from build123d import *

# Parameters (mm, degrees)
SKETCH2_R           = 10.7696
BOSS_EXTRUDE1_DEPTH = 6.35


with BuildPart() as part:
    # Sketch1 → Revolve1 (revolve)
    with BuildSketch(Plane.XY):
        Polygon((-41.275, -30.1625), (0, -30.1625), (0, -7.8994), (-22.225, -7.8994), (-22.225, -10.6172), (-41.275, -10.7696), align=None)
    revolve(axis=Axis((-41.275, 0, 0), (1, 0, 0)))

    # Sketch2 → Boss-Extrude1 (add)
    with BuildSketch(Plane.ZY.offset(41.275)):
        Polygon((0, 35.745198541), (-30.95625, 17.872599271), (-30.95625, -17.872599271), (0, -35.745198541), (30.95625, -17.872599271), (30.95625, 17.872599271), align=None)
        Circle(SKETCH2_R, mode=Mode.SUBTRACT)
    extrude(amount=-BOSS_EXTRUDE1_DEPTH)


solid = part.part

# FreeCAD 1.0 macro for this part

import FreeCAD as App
import Part
import Sketcher
from FreeCAD import Vector
Q = App.Units.Quantity


def add_polygon(sketch, points):
    """Adds a closed chain of lines whose ends are joined by coincident constraints."""
    first, n = sketch.GeometryCount, len(points)
    for a, b in zip(points, points[1:] + points[:1]):
        sketch.addGeometry(Part.LineSegment(App.Vector(*a, 0), App.Vector(*b, 0)), False)
    for i in range(n):
        sketch.addConstraint(Sketcher.Constraint("Coincident", first + i, 2, first + (i + 1) % n, 1))

doc = App.newDocument("Part")
params = doc.addObject("Spreadsheet::Sheet", "Params")
for row, (alias, value) in enumerate([
    ("sketch1_width", "1.625 in"),
    ("sketch1_width2", "0.875 in"),
    ("sketch1_height", "0.107 in"),
    ("revolution_angle", "360 deg"),
    ("sketch2_diameter", "0.848 in"),
    ("pad1_length", "0.25 in"),
], start=1):
    params.set(f"A{row}", alias)
    params.set(f"B{row}", "=" + value)
    params.setAlias(f"B{row}", alias)

body = doc.addObject("PartDesign::Body", "Body")

# Sketch on XY plane
sketch1 = body.newObject("Sketcher::SketchObject", "Sketch")
sketch1.AttachmentSupport = (doc.getObject("XY_Plane"), [""])
sketch1.MapMode = "FlatFace"
add_polygon(sketch1, [(-41.3, -30.2), (0, -30.2), (0, -7.9), (-22.2, -7.9), (-22.2, -10.6), (-41.3, -10.8)])  # lines 0-5
sketch1.addConstraint(Sketcher.Constraint("Horizontal", 0))
sketch1.addConstraint(Sketcher.Constraint("Vertical", 1))
sketch1.addConstraint(Sketcher.Constraint("Horizontal", 2))
sketch1.addConstraint(Sketcher.Constraint("Vertical", 3))
sketch1.addConstraint(Sketcher.Constraint("Vertical", 5))
sketch1.addConstraint(Sketcher.Constraint("PointOnObject", 0, 2, -2))
sketch1.addConstraint(Sketcher.Constraint("DistanceX", 0, 1, 0, 2, Q("1.625 in")))
sketch1.addConstraint(Sketcher.Constraint("DistanceX", 2, 2, 2, 1, Q("0.875 in")))
sketch1.addConstraint(Sketcher.Constraint("DistanceY", 3, 2, 3, 1, Q("0.107 in")))
sketch1.addConstraint(Sketcher.Constraint("DistanceY", 1, 1, 1, 2, Q("0.8765 in")))
sketch1.addConstraint(Sketcher.Constraint("DistanceY", 5, 2, 5, 1, Q("0.7635 in")))
sketch1.addConstraint(Sketcher.Constraint("DistanceY", 0, 2, -1, 1, Q("1.1875 in")))
sketch1.setExpression("Constraints[12]", "Params.sketch1_width")
sketch1.setExpression("Constraints[13]", "Params.sketch1_width2")
sketch1.setExpression("Constraints[14]", "Params.sketch1_height")
revolution = body.newObject("PartDesign::Revolution", "Revolution")
revolution.Profile = sketch1
revolution.ReferenceAxis = (sketch1, ["H_Axis"])
revolution.setExpression("Angle", "Params.revolution_angle")

# Sketch on YZ plane
sketch2 = body.newObject("Sketcher::SketchObject", "Sketch001")
sketch2.AttachmentSupport = (doc.getObject("YZ_Plane"), [""])
sketch2.MapMode = "FlatFace"
sketch2.AttachmentOffset = App.Placement(Vector(0, 0, -1.625 * 25.4), App.Rotation())
add_polygon(sketch2, [(36, 0), (18, -31), (-18, -31), (-36, 0), (-18, 31), (18, 31)])  # lines 0-5
sketch2.addGeometry(Part.Circle(Vector(0, 0, 0), Vector(0, 0, 1), 11), False)  # 6
sketch2.addConstraint(Sketcher.Constraint("Horizontal", 1))
sketch2.addConstraint(Sketcher.Constraint("Horizontal", 4))
sketch2.addConstraint(Sketcher.Constraint("Coincident", 6, 3, -1, 1))
sketch2.addConstraint(Sketcher.Constraint("Symmetric", 0, 2, 3, 2, -1, 1))
sketch2.addConstraint(Sketcher.Constraint("Symmetric", 2, 2, 5, 2, -1, 1))
sketch2.addConstraint(Sketcher.Constraint("PointOnObject", 2, 2, -1))
sketch2.addConstraint(Sketcher.Constraint("Parallel", 2, 5))
sketch2.addConstraint(Sketcher.Constraint("Vertical", 1, 2, 3, 2))
sketch2.addConstraint(Sketcher.Constraint("Diameter", 6, Q("0.848 in")))
sketch2.addConstraint(Sketcher.Constraint("Angle", 0, Q("-120 deg")))
sketch2.addConstraint(Sketcher.Constraint("DistanceY", 0, 2, -1, 1, Q("1.21875 in")))
sketch2.addConstraint(Sketcher.Constraint("DistanceX", 1, 2, 1, 1, 35.745199))
sketch2.setExpression("Constraints[14]", "Params.sketch2_diameter")
pad1 = body.newObject("PartDesign::Pad", "Pad")
pad1.Profile = sketch2
pad1.setExpression("Length", "Params.pad1_length")

doc.recompute()
